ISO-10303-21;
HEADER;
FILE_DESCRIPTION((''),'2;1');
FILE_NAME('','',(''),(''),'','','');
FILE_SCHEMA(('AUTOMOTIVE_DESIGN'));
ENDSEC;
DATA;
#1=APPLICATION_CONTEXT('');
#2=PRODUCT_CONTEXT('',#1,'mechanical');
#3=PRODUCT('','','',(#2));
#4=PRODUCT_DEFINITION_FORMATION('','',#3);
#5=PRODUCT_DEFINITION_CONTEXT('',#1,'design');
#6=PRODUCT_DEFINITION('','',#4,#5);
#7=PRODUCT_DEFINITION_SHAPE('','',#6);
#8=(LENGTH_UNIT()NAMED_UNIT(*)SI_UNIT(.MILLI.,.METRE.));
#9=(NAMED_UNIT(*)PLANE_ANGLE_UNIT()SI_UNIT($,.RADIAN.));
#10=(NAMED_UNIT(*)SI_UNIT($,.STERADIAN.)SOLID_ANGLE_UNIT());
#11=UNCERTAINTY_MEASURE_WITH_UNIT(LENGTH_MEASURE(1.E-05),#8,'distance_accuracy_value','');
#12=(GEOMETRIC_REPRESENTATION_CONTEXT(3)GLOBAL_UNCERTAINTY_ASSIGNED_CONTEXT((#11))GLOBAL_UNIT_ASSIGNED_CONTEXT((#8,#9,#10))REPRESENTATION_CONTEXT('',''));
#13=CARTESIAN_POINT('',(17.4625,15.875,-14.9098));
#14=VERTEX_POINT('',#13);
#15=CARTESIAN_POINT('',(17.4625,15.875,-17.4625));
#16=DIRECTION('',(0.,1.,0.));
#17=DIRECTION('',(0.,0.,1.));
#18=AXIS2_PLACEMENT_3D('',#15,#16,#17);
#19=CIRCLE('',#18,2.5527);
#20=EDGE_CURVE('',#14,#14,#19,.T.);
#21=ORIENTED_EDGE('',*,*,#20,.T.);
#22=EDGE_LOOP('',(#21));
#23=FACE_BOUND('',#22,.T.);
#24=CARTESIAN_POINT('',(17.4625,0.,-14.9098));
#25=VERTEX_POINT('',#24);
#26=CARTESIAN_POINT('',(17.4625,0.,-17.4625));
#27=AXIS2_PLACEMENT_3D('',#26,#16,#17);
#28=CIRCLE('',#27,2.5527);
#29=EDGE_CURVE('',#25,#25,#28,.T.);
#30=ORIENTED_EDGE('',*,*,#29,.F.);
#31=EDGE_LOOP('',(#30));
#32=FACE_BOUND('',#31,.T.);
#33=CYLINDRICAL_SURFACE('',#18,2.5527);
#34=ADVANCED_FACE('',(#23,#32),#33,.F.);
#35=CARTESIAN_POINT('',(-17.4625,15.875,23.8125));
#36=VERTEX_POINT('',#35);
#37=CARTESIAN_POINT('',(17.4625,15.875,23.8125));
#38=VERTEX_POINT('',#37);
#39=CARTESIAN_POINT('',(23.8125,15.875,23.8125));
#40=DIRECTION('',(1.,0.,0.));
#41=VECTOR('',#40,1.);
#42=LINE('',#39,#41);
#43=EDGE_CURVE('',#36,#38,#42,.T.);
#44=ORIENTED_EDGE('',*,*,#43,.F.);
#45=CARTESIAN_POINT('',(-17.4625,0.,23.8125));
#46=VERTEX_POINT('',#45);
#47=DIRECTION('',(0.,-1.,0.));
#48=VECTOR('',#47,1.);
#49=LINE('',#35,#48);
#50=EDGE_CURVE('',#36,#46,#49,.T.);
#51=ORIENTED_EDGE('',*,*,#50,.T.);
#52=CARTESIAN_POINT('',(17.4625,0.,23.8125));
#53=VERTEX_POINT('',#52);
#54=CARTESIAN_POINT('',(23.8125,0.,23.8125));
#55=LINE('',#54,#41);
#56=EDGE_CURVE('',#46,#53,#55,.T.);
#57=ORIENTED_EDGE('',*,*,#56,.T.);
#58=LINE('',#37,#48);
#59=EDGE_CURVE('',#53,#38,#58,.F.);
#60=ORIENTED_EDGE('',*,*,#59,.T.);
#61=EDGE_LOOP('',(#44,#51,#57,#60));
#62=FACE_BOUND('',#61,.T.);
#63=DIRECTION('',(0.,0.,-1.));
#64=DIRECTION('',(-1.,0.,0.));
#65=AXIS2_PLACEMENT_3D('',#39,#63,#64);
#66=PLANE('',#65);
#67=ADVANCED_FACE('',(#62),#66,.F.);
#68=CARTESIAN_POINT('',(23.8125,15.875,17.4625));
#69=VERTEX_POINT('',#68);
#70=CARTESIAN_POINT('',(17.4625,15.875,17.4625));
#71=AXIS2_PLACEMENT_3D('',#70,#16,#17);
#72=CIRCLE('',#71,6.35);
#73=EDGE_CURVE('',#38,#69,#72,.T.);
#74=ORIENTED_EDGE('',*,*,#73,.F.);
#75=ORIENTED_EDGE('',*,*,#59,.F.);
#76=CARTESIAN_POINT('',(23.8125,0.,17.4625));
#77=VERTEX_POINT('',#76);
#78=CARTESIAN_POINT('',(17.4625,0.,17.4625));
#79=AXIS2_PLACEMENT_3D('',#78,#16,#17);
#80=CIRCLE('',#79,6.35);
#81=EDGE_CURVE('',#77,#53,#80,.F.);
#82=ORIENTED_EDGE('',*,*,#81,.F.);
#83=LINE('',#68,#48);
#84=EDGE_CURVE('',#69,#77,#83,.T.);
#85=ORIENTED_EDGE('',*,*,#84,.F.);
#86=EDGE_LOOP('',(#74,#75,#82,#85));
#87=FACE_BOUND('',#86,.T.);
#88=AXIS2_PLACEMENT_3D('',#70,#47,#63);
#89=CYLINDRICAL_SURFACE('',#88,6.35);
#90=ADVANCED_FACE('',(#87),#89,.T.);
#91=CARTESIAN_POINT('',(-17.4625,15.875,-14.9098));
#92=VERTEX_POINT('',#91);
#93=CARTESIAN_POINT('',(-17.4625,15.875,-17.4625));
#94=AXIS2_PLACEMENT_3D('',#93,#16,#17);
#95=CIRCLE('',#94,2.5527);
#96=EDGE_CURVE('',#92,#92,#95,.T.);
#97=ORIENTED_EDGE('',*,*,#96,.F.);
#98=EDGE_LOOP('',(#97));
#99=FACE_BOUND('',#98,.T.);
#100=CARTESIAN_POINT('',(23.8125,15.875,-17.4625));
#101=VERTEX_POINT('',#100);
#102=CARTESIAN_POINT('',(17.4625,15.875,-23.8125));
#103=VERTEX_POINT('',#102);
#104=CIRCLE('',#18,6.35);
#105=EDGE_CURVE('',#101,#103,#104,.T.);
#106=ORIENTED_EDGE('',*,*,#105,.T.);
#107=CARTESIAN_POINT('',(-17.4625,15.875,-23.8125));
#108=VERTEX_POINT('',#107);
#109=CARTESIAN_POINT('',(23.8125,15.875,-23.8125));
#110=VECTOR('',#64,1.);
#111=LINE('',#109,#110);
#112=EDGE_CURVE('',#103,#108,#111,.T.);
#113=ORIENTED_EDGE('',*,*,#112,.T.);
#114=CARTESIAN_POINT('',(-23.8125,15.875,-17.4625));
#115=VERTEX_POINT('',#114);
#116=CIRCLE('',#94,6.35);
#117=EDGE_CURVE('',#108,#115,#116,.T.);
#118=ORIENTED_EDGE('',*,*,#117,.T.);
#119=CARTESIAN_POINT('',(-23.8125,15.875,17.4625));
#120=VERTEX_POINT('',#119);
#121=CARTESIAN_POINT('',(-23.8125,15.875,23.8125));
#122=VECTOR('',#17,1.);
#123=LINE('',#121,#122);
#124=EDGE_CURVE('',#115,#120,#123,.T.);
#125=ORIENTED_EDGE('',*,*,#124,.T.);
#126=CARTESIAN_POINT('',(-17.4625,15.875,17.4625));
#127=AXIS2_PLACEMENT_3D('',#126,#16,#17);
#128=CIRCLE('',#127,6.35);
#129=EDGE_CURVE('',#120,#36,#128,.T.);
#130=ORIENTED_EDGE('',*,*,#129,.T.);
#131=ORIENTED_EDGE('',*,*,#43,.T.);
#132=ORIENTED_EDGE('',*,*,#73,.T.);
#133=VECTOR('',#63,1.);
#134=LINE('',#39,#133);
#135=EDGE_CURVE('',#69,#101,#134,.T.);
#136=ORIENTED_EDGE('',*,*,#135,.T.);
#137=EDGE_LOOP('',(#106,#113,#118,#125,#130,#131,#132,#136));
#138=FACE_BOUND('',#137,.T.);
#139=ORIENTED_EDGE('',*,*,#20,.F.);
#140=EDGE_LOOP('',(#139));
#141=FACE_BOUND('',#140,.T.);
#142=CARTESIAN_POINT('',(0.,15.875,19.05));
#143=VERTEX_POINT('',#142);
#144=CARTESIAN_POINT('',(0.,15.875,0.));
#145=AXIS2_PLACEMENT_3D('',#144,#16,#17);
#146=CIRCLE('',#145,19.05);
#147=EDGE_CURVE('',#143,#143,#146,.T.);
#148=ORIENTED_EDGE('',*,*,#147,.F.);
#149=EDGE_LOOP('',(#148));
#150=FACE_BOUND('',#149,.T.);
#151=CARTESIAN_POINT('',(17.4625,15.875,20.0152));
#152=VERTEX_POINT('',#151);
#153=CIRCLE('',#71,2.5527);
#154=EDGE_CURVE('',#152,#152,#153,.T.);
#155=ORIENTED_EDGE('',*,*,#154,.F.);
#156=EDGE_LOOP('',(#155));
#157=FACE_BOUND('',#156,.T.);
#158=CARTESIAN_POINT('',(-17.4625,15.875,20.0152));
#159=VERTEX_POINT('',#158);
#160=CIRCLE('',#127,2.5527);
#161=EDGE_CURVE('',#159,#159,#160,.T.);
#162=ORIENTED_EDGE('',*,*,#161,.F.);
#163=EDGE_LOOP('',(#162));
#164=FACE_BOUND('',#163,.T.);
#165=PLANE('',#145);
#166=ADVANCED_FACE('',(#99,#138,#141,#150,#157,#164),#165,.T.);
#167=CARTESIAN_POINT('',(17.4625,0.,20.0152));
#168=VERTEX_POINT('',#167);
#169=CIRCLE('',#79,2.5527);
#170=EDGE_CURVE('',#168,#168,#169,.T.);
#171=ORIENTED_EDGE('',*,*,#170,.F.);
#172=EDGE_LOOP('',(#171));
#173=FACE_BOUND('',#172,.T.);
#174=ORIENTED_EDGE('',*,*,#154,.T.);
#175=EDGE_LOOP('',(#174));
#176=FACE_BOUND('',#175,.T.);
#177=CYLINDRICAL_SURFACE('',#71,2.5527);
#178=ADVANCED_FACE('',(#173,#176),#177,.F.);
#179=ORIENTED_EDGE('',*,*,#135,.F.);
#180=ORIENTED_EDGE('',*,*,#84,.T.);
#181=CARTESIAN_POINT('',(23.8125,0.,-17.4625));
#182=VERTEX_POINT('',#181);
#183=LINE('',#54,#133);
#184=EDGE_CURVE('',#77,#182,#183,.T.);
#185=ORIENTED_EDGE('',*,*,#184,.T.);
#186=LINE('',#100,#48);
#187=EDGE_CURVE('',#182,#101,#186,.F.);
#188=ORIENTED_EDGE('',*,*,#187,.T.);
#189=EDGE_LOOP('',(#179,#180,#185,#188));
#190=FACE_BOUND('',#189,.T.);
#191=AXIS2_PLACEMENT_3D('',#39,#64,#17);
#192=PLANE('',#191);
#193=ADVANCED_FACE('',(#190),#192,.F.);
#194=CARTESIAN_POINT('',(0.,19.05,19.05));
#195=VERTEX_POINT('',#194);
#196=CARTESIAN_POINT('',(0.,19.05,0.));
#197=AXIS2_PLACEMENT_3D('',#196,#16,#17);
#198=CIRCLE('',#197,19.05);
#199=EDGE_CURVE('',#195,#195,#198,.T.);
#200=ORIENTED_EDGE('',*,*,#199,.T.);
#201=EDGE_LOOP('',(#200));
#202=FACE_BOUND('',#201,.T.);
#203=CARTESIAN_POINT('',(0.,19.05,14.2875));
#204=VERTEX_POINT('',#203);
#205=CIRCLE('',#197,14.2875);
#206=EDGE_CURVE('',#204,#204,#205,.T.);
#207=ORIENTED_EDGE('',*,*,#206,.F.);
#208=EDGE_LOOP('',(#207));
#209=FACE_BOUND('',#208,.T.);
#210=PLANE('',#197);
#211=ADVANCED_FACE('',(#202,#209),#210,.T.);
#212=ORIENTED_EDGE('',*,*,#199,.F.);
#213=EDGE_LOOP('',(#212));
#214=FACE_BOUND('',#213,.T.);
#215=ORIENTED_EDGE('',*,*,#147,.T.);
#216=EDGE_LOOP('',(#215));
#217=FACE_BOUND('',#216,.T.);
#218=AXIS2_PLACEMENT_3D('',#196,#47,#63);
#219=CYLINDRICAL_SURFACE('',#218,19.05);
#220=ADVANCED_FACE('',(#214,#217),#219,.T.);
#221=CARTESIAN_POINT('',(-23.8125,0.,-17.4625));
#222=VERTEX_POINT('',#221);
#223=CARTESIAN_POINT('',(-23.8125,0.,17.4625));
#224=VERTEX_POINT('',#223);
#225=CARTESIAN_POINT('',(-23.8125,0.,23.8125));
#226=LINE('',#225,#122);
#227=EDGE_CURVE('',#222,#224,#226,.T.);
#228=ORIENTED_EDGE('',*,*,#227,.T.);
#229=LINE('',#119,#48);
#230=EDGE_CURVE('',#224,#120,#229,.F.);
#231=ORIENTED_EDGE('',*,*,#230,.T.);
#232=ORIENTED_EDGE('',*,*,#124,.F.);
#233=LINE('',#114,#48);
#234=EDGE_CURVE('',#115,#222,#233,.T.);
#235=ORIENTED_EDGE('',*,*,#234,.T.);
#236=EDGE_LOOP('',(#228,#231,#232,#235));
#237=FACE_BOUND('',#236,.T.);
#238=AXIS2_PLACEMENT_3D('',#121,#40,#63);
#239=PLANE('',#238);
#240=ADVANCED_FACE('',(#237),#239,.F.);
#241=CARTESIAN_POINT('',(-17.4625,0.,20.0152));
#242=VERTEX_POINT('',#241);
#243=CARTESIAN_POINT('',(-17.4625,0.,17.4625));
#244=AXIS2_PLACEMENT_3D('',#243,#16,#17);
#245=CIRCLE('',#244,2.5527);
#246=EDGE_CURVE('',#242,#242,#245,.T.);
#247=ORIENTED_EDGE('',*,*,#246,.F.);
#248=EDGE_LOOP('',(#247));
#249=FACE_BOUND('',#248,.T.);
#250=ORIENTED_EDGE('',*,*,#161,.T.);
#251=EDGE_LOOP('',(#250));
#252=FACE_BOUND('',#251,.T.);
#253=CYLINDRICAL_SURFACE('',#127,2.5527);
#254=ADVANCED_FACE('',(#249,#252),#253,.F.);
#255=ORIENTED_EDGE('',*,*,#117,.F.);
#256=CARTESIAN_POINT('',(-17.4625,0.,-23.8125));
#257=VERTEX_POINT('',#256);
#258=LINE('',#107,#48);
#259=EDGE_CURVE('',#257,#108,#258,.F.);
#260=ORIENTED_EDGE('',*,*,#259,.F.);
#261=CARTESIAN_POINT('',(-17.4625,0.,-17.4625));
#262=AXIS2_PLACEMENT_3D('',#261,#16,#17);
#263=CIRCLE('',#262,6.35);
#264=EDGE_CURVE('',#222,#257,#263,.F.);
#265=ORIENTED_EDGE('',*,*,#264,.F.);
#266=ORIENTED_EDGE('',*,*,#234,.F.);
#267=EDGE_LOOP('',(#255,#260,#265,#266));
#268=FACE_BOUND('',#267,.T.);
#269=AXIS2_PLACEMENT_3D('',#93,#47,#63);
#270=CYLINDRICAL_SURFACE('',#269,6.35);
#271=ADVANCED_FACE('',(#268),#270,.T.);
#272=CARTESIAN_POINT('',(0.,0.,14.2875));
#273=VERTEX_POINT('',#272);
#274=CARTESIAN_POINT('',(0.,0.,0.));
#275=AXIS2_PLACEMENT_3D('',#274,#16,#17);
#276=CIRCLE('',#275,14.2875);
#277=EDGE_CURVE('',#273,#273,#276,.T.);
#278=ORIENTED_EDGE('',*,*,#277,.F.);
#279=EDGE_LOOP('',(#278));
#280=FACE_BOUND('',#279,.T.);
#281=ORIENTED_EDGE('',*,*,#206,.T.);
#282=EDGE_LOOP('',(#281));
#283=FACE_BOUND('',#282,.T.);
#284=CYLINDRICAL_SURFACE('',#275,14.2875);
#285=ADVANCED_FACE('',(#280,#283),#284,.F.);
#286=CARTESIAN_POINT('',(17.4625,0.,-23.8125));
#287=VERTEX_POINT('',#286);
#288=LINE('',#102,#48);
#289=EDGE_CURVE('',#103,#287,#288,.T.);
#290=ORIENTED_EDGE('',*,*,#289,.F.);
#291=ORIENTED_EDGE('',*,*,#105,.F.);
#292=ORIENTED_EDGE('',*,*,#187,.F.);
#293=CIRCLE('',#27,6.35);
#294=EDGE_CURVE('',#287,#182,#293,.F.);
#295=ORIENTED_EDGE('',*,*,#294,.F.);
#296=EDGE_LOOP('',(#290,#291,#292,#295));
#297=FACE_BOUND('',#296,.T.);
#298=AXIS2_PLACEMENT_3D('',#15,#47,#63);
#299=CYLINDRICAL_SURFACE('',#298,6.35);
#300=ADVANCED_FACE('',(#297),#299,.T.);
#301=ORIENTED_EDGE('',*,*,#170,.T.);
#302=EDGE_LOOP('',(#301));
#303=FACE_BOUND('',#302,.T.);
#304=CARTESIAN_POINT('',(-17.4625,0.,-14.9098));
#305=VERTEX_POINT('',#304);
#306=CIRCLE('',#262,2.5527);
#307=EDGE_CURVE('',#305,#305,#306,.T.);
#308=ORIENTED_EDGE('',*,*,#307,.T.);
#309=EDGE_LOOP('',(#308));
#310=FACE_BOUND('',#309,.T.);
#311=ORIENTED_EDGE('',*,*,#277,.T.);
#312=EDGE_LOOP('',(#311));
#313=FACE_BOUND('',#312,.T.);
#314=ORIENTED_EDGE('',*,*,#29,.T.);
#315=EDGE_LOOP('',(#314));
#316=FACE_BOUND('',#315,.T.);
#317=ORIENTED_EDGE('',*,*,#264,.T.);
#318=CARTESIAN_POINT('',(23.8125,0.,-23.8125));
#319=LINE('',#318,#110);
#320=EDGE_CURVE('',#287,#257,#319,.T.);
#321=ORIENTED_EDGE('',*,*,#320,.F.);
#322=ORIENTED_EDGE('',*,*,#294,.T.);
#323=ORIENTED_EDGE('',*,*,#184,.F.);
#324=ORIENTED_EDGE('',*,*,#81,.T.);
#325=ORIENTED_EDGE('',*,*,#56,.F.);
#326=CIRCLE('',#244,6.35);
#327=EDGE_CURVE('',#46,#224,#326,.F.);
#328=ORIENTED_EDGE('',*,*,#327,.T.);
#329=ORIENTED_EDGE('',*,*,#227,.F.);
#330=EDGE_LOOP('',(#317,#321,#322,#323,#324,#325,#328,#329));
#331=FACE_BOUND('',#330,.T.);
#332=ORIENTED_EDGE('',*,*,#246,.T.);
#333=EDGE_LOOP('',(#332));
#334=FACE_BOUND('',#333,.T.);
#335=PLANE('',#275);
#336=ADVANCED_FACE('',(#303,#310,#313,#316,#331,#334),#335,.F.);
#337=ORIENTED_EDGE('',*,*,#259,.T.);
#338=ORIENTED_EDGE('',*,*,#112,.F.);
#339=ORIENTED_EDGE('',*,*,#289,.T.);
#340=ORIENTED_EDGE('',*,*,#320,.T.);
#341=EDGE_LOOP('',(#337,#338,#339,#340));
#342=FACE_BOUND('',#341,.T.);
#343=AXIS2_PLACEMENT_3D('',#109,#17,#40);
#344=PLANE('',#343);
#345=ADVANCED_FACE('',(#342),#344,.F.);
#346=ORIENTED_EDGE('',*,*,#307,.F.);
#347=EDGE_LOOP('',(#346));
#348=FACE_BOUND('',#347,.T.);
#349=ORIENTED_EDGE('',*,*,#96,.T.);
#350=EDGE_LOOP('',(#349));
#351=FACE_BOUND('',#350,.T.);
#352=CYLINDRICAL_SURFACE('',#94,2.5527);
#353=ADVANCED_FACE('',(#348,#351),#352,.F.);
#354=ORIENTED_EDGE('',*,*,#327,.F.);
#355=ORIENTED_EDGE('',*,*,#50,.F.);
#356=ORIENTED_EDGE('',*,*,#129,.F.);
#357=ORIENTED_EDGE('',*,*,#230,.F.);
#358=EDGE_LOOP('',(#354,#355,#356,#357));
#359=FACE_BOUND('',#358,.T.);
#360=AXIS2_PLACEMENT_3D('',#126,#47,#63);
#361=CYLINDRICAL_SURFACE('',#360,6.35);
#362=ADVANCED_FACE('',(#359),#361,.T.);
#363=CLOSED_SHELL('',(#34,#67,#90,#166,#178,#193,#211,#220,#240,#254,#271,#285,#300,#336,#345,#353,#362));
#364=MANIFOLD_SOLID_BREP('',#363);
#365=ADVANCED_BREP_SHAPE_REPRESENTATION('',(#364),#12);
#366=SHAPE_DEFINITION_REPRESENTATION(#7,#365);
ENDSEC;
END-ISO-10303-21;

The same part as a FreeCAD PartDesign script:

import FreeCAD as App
import Part
import Sketcher

V = App.Vector
Q = App.Units.Quantity


def edges_at(feature, points):
    """Names of the edges that pass closest to the given points."""
    edges = feature.Shape.Edges
    near = lambda p: min(range(len(edges)), key=lambda i: edges[i].distToShape(Part.Vertex(*p))[0])
    return sorted({f"Edge{near(p) + 1}" for p in points})


def add_polygon(sketch, points):
    """Adds a closed chain of lines whose ends are joined by coincident constraints."""
    first, n = sketch.GeometryCount, len(points)
    for a, b in zip(points, points[1:] + points[:1]):
        sketch.addGeometry(Part.LineSegment(App.Vector(*a, 0), App.Vector(*b, 0)), False)
    for i in range(n):
        sketch.addConstraint(Sketcher.Constraint("Coincident", first + i, 2, first + (i + 1) % n, 1))

doc = App.newDocument("Part")
body = doc.addObject("PartDesign::Body", "Body")

# Sketch on XZ plane
sketch1 = doc.addObject("Sketcher::SketchObject", "Sketch")
body.addObject(sketch1)
sketch1.AttachmentSupport = (doc.XZ_Plane, [""])
sketch1.MapMode = "FlatFace"
add_polygon(sketch1, [(-24, -24), (-24, 24), (24, 24), (24, -24)])  # lines 0-3
sketch1.addConstraint(Sketcher.Constraint("Vertical", 0))
sketch1.addConstraint(Sketcher.Constraint("Horizontal", 1))
sketch1.addConstraint(Sketcher.Constraint("Vertical", 2))
sketch1.addConstraint(Sketcher.Constraint("Horizontal", 3))
sketch1.addConstraint(Sketcher.Constraint("Symmetric", 0, 2, 2, 2, -1, 1))
sketch1.addConstraint(Sketcher.Constraint("Equal", 3, 0))
sketch1.addConstraint(Sketcher.Constraint("DistanceX", 1, 1, 1, 2, Q("1.875 in")))
pad1 = doc.addObject("PartDesign::Pad", "Pad")
body.addObject(pad1)
pad1.Profile = sketch1
pad1.Length = Q("0.625 in")
pad1.Reversed = True

# Sketch on XZ plane
sketch2 = doc.addObject("Sketcher::SketchObject", "Sketch001")
body.addObject(sketch2)
sketch2.AttachmentSupport = (doc.XZ_Plane, [""])
sketch2.MapMode = "FlatFace"
sketch2.AttachmentOffset = App.Placement(V(0, 0, -0.625 * 25.4), App.Rotation())
sketch2.addGeometry(Part.Circle(V(0, 0, 0), V(0, 0, 1), 19), False)
sketch2.addConstraint(Sketcher.Constraint("Coincident", 0, 3, -1, 1))
sketch2.addConstraint(Sketcher.Constraint("Diameter", 0, Q("1.5 in")))
pad2 = doc.addObject("PartDesign::Pad", "Pad001")
body.addObject(pad2)
pad2.Profile = sketch2
pad2.Length = Q("0.125 in")
pad2.Reversed = True

# Sketch on XZ plane
sketch3 = doc.addObject("Sketcher::SketchObject", "Sketch002")
body.addObject(sketch3)
sketch3.AttachmentSupport = (doc.XZ_Plane, [""])
sketch3.MapMode = "FlatFace"
sketch3.AttachmentOffset = App.Placement(V(0, 0, -0.75 * 25.4), App.Rotation())
sketch3.addGeometry(Part.Circle(V(0, 0, 0), V(0, 0, 1), 14), False)
sketch3.addConstraint(Sketcher.Constraint("Coincident", 0, 3, -1, 1))
sketch3.addConstraint(Sketcher.Constraint("Diameter", 0, Q("1.125 in")))
pocket1 = doc.addObject("PartDesign::Pocket", "Pocket")
body.addObject(pocket1)
pocket1.Profile = sketch3
pocket1.Type = "ThroughAll"
pocket1.Reversed = True

# Sketch on XZ plane
sketch4 = doc.addObject("Sketcher::SketchObject", "Sketch003")
body.addObject(sketch4)
sketch4.AttachmentSupport = (doc.XZ_Plane, [""])
sketch4.MapMode = "FlatFace"
sketch4.AttachmentOffset = App.Placement(V(0, 0, -0.625 * 25.4), App.Rotation())
sketch4.addGeometry(Part.Circle(V(-17.5, -17.5, 0), V(0, 0, 1), 2.6), False)
sketch4.addGeometry(Part.Circle(V(17.5, -17.5, 0), V(0, 0, 1), 2.6), False)
sketch4.addGeometry(Part.Circle(V(17.5, 17.5, 0), V(0, 0, 1), 2.6), False)
sketch4.addGeometry(Part.Circle(V(-17.5, 17.5, 0), V(0, 0, 1), 2.6), False)
sketch4.addConstraint(Sketcher.Constraint("Equal", 0, 1))
sketch4.addConstraint(Sketcher.Constraint("Equal", 1, 2))
sketch4.addConstraint(Sketcher.Constraint("Equal", 2, 3))
sketch4.addConstraint(Sketcher.Constraint("Symmetric", 0, 3, 2, 3, -1, 1))
sketch4.addConstraint(Sketcher.Constraint("Symmetric", 1, 3, 3, 3, -1, 1))
sketch4.addConstraint(Sketcher.Constraint("Symmetric", 0, 3, 1, 3, -2))
sketch4.addConstraint(Sketcher.Constraint("Diameter", 0, Q("0.201 in")))
sketch4.addConstraint(Sketcher.Constraint("DistanceX", 0, 3, -1, 1, Q("0.6875 in")))
sketch4.addConstraint(Sketcher.Constraint("DistanceY", 0, 3, -1, 1, Q("0.6875 in")))
doc.recompute()
hole = doc.addObject("PartDesign::Hole", "Hole")
body.addObject(hole)
hole.Profile = sketch4
hole.ThreadType = "None"
hole.Diameter = Q("0.201 in")
hole.DepthType = "ThroughAll"
hole.Reversed = True
doc.recompute()

fillet = doc.addObject("PartDesign::Fillet", "Fillet")
body.addObject(fillet)
fillet.Base = (hole, edges_at(hole, [
    (-23.812, 7.938, -23.812),
    (23.812, 7.938, -23.812),
    (23.812, 7.938, 23.812),
    (-23.812, 7.938, 23.812),
]))
fillet.Radius = Q("0.25 in")

doc.recompute()
